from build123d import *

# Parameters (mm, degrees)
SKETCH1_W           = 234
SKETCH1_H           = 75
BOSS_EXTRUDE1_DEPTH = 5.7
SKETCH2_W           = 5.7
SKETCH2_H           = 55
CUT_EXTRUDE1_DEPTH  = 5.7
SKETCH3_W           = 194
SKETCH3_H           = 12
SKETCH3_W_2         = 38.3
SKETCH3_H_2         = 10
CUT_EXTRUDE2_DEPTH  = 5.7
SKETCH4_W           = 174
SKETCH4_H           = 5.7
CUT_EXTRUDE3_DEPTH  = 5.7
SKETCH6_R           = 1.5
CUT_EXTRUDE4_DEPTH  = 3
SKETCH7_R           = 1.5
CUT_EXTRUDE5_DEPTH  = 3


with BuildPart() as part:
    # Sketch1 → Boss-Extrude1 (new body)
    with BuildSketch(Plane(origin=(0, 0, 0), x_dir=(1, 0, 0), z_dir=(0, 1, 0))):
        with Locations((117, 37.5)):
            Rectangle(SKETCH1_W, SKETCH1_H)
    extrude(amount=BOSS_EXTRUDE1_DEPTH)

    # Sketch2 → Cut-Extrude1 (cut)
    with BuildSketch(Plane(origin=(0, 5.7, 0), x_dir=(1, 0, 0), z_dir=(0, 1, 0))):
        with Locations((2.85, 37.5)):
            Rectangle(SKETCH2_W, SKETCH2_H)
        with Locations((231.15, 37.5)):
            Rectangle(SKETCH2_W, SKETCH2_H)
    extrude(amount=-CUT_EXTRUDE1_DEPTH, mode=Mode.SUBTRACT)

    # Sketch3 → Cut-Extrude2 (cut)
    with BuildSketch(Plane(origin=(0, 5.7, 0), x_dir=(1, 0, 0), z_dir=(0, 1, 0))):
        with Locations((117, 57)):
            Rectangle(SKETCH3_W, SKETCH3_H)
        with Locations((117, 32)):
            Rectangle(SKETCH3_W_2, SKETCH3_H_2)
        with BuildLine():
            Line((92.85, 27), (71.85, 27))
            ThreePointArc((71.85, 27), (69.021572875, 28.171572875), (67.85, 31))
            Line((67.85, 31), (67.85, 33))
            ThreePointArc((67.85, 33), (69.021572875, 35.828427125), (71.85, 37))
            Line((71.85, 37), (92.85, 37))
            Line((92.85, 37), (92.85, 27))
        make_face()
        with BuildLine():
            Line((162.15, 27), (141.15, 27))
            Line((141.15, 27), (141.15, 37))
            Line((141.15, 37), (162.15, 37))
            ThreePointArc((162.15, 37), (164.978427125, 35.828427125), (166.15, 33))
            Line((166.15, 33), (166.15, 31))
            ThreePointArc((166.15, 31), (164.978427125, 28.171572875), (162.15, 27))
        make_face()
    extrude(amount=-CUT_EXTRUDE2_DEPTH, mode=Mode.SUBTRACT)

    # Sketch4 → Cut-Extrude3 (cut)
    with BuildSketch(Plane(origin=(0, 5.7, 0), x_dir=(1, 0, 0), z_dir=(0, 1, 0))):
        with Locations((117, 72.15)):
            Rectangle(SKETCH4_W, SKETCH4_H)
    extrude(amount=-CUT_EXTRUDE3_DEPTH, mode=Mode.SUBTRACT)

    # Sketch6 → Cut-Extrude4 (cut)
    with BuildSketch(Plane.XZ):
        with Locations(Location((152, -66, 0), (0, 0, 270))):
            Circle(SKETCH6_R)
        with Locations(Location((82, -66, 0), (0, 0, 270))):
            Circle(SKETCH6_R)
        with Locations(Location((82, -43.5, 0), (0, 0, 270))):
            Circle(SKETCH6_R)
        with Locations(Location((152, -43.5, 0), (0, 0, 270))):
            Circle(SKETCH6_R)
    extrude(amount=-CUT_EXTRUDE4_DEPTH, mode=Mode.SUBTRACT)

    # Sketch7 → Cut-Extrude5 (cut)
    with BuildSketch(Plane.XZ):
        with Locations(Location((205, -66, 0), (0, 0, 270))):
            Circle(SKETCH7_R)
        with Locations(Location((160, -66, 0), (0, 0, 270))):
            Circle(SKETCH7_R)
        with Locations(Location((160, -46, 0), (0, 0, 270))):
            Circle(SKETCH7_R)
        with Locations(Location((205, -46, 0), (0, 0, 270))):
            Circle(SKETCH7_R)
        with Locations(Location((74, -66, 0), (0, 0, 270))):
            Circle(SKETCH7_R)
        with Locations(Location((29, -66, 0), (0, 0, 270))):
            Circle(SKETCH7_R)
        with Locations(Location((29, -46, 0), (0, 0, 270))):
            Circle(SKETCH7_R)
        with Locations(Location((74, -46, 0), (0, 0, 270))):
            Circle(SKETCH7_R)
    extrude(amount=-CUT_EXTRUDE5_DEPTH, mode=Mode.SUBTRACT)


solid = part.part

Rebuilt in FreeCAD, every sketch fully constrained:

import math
import FreeCAD as App
import Part
import Sketcher
from FreeCAD import Vector


def add_polygon(sketch, points):
    """Adds a closed chain of lines whose ends are joined by coincident constraints."""
    first, n = sketch.GeometryCount, len(points)
    for a, b in zip(points, points[1:] + points[:1]):
        sketch.addGeometry(Part.LineSegment(App.Vector(*a, 0), App.Vector(*b, 0)), False)
    for i in range(n):
        sketch.addConstraint(Sketcher.Constraint("Coincident", first + i, 2, first + (i + 1) % n, 1))

doc = App.newDocument("Part")
params = doc.addObject("Spreadsheet::Sheet", "Params")
for row, (alias, value) in enumerate([
    ("sketch1_width", "234 mm"),
    ("sketch1_height", "75 mm"),
    ("pad1_length", "5.7 mm"),
    ("sketch2_height", "55 mm"),
    ("sketch2_width", "5.7 mm"),
    ("pocket1_length", "5.7 mm"),
    ("sketch3_radius", "4 mm"),
    ("sketch3_width", "194 mm"),
    ("sketch3_width2", "21 mm"),
    ("sketch3_height", "12 mm"),
    ("sketch3_height2", "10 mm"),
    ("pocket2_length", "5.7 mm"),
    ("sketch4_width", "174 mm"),
    ("sketch4_height", "5.7 mm"),
    ("pocket3_length", "5.7 mm"),
    ("sketch5_diameter", "3 mm"),
    ("pocket4_length", "3 mm"),
    ("sketch6_diameter", "3 mm"),
    ("pocket5_length", "3 mm"),
], start=1):
    params.set(f"A{row}", alias)
    params.set(f"B{row}", "=" + value)
    params.setAlias(f"B{row}", alias)

body = doc.addObject("PartDesign::Body", "Body")

sketch1 = doc.addObject("Sketcher::SketchObject", "Sketch")
body.addObject(sketch1)
sketch1.AttachmentSupport = (doc.XZ_Plane, [""])
sketch1.MapMode = "FlatFace"
add_polygon(sketch1, [(0, -75), (0, 0), (234, 0), (234, -75)])
sketch1.addConstraint(Sketcher.Constraint("Vertical", 0))
sketch1.addConstraint(Sketcher.Constraint("Horizontal", 1))
sketch1.addConstraint(Sketcher.Constraint("Vertical", 2))
sketch1.addConstraint(Sketcher.Constraint("Horizontal", 3))
sketch1.addConstraint(Sketcher.Constraint("Coincident", 0, 2, -1, 1))
sketch1.addConstraint(Sketcher.Constraint("DistanceX", 1, 1, 1, 2, 234.0))
sketch1.addConstraint(Sketcher.Constraint("DistanceY", 0, 1, 0, 2, 75.0))
sketch1.setExpression("Constraints[9]", "Params.sketch1_width")
sketch1.setExpression("Constraints[10]", "Params.sketch1_height")
pad1 = doc.addObject("PartDesign::Pad", "Pad")
body.addObject(pad1)
pad1.Profile = sketch1
pad1.setExpression("Length", "Params.pad1_length")
pad1.Reversed = True

sketch2 = doc.addObject("Sketcher::SketchObject", "Sketch001")
body.addObject(sketch2)
sketch2.AttachmentSupport = (doc.XZ_Plane, [""])
sketch2.MapMode = "FlatFace"
sketch2.AttachmentOffset = App.Placement(Vector(0, 0, -5.7), App.Rotation())
add_polygon(sketch2, [(0, -65), (0, -10), (6, -10), (6, -65)])
add_polygon(sketch2, [(228, -65), (228, -10), (234, -10), (234, -65)])
sketch2.addConstraint(Sketcher.Constraint("Vertical", 0))
sketch2.addConstraint(Sketcher.Constraint("Horizontal", 1))
sketch2.addConstraint(Sketcher.Constraint("Vertical", 2))
sketch2.addConstraint(Sketcher.Constraint("Horizontal", 3))
sketch2.addConstraint(Sketcher.Constraint("Vertical", 4))
sketch2.addConstraint(Sketcher.Constraint("Horizontal", 5))
sketch2.addConstraint(Sketcher.Constraint("Vertical", 6))
sketch2.addConstraint(Sketcher.Constraint("Horizontal", 7))
sketch2.addConstraint(Sketcher.Constraint("PointOnObject", 0, 2, -2))
sketch2.addConstraint(Sketcher.Constraint("Horizontal", 1, 2, 4, 2))
sketch2.addConstraint(Sketcher.Constraint("Horizontal", 3, 2, 6, 2))
sketch2.addConstraint(Sketcher.Constraint("Equal", 3, 5))
sketch2.addConstraint(Sketcher.Constraint("DistanceY", 0, 1, 0, 2, 55.0))
sketch2.addConstraint(Sketcher.Constraint("DistanceX", 1, 1, 1, 2, 5.7))
sketch2.addConstraint(Sketcher.Constraint("DistanceY", 0, 2, -1, 1, 10.0))
sketch2.addConstraint(Sketcher.Constraint("DistanceX", -1, 1, 5, 2, 234.0))
sketch2.setExpression("Constraints[20]", "Params.sketch2_height")
sketch2.setExpression("Constraints[21]", "Params.sketch2_width")
pocket1 = doc.addObject("PartDesign::Pocket", "Pocket")
body.addObject(pocket1)
pocket1.Profile = sketch2
pocket1.setExpression("Length", "Params.pocket1_length")
pocket1.Reversed = True

sketch3 = doc.addObject("Sketcher::SketchObject", "Sketch002")
body.addObject(sketch3)
sketch3.AttachmentSupport = (doc.XZ_Plane, [""])
sketch3.MapMode = "FlatFace"
sketch3.AttachmentOffset = App.Placement(Vector(0, 0, -5.7), App.Rotation())
add_polygon(sketch3, [(20, -63), (20, -51), (214, -51), (214, -63)])
add_polygon(sketch3, [(97.8, -37), (97.8, -27), (136.2, -27), (136.2, -37)])
sketch3.addGeometry(Part.LineSegment(Vector(71.8, -27, 0), Vector(92.8, -27, 0)), False)
sketch3.addGeometry(Part.LineSegment(Vector(92.8, -27, 0), Vector(92.8, -37, 0)), False)
sketch3.addGeometry(Part.LineSegment(Vector(92.8, -37, 0), Vector(71.8, -37, 0)), False)
sketch3.addGeometry(Part.ArcOfCircle(Part.Circle(Vector(71.8, -33, 0), Vector(0, 0, 1), 4), math.radians(180), math.radians(270)), False)
sketch3.addGeometry(Part.LineSegment(Vector(67.8, -33, 0), Vector(67.8, -31, 0)), False)
sketch3.addGeometry(Part.ArcOfCircle(Part.Circle(Vector(71.8, -31, 0), Vector(0, 0, 1), 4), math.radians(90), math.radians(180)), False)
sketch3.addGeometry(Part.LineSegment(Vector(141.2, -27, 0), Vector(162.2, -27, 0)), False)
sketch3.addGeometry(Part.ArcOfCircle(Part.Circle(Vector(162.2, -31, 0), Vector(0, 0, 1), 4), math.radians(0), math.radians(90)), False)
sketch3.addGeometry(Part.LineSegment(Vector(166.2, -31, 0), Vector(166.2, -33, 0)), False)
sketch3.addGeometry(Part.ArcOfCircle(Part.Circle(Vector(162.2, -33, 0), Vector(0, 0, 1), 4), math.radians(-90), math.radians(0)), False)
sketch3.addGeometry(Part.LineSegment(Vector(162.2, -37, 0), Vector(141.2, -37, 0)), False)
sketch3.addGeometry(Part.LineSegment(Vector(141.2, -37, 0), Vector(141.2, -27, 0)), False)
sketch3.addConstraint(Sketcher.Constraint("Coincident", 8, 2, 9, 1))
sketch3.addConstraint(Sketcher.Constraint("Coincident", 9, 2, 10, 1))
sketch3.addConstraint(Sketcher.Constraint("Tangent", 10, 2, 11, 2))
sketch3.addConstraint(Sketcher.Constraint("Tangent", 11, 1, 12, 1))
sketch3.addConstraint(Sketcher.Constraint("Tangent", 12, 2, 13, 2))
sketch3.addConstraint(Sketcher.Constraint("Tangent", 13, 1, 8, 1))
sketch3.addConstraint(Sketcher.Constraint("Tangent", 14, 2, 15, 2))
sketch3.addConstraint(Sketcher.Constraint("Tangent", 15, 1, 16, 1))
sketch3.addConstraint(Sketcher.Constraint("Tangent", 16, 2, 17, 2))
sketch3.addConstraint(Sketcher.Constraint("Tangent", 17, 1, 18, 1))
sketch3.addConstraint(Sketcher.Constraint("Coincident", 18, 2, 19, 1))
sketch3.addConstraint(Sketcher.Constraint("Coincident", 19, 2, 14, 1))
sketch3.addConstraint(Sketcher.Constraint("Vertical", 0))
sketch3.addConstraint(Sketcher.Constraint("Horizontal", 1))
sketch3.addConstraint(Sketcher.Constraint("Vertical", 2))
sketch3.addConstraint(Sketcher.Constraint("Horizontal", 3))
sketch3.addConstraint(Sketcher.Constraint("Vertical", 4))
sketch3.addConstraint(Sketcher.Constraint("Horizontal", 5))
sketch3.addConstraint(Sketcher.Constraint("Vertical", 6))
sketch3.addConstraint(Sketcher.Constraint("Horizontal", 7))
sketch3.addConstraint(Sketcher.Constraint("Horizontal", 8))
sketch3.addConstraint(Sketcher.Constraint("Vertical", 9))
sketch3.addConstraint(Sketcher.Constraint("Horizontal", 10))
sketch3.addConstraint(Sketcher.Constraint("Vertical", 12))
sketch3.addConstraint(Sketcher.Constraint("Horizontal", 14))
sketch3.addConstraint(Sketcher.Constraint("Vertical", 16))
sketch3.addConstraint(Sketcher.Constraint("Horizontal", 18))
sketch3.addConstraint(Sketcher.Constraint("Vertical", 19))
sketch3.addConstraint(Sketcher.Constraint("Equal", 11, 13))
sketch3.addConstraint(Sketcher.Constraint("Equal", 13, 15))
sketch3.addConstraint(Sketcher.Constraint("Equal", 15, 17))
sketch3.addConstraint(Sketcher.Constraint("Horizontal", 13, 3, 15, 3))
sketch3.addConstraint(Sketcher.Constraint("Horizontal", 11, 3, 17, 3))
sketch3.addConstraint(Sketcher.Constraint("Horizontal", 5, 2, 8, 2))
sketch3.addConstraint(Sketcher.Constraint("Horizontal", 7, 2, 9, 2))
sketch3.addConstraint(Sketcher.Constraint("Equal", 10, 14))
sketch3.addConstraint(Sketcher.Constraint("Radius", 11, 4.0))
sketch3.addConstraint(Sketcher.Constraint("DistanceX", 1, 1, 1, 2, 194.0))
sketch3.addConstraint(Sketcher.Constraint("DistanceX", 8, 1, 8, 2, 21.0))
sketch3.addConstraint(Sketcher.Constraint("DistanceY", 0, 1, 0, 2, 12.0))
sketch3.addConstraint(Sketcher.Constraint("DistanceY", 4, 1, 4, 2, 10.0))
sketch3.addConstraint(Sketcher.Constraint("DistanceX", 5, 1, 5, 2, 38.3))
sketch3.addConstraint(Sketcher.Constraint("DistanceY", 11, 3, -1, 1, 33.0))
sketch3.addConstraint(Sketcher.Constraint("DistanceX", -1, 1, 0, 2, 20.0))
sketch3.addConstraint(Sketcher.Constraint("DistanceY", 0, 2, -1, 1, 51.0))
sketch3.addConstraint(Sketcher.Constraint("DistanceX", 13, 3, 4, 2, 26.0))
sketch3.addConstraint(Sketcher.Constraint("DistanceX", 5, 2, 15, 3, 26.0))
sketch3.addConstraint(Sketcher.Constraint("DistanceX", -1, 1, 11, 3, 71.85))
sketch3.setExpression("Constraints[44]", "Params.sketch3_radius")
sketch3.setExpression("Constraints[45]", "Params.sketch3_width")
sketch3.setExpression("Constraints[46]", "Params.sketch3_width2")
sketch3.setExpression("Constraints[47]", "Params.sketch3_height")
sketch3.setExpression("Constraints[48]", "Params.sketch3_height2")
pocket2 = doc.addObject("PartDesign::Pocket", "Pocket001")
body.addObject(pocket2)
pocket2.Profile = sketch3
pocket2.setExpression("Length", "Params.pocket2_length")
pocket2.Reversed = True

sketch4 = doc.addObject("Sketcher::SketchObject", "Sketch003")
body.addObject(sketch4)
sketch4.AttachmentSupport = (doc.XZ_Plane, [""])
sketch4.MapMode = "FlatFace"
sketch4.AttachmentOffset = App.Placement(Vector(0, 0, -5.7), App.Rotation())
add_polygon(sketch4, [(30, -75), (30, -69), (204, -69), (204, -75)])
sketch4.addConstraint(Sketcher.Constraint("Vertical", 0))
sketch4.addConstraint(Sketcher.Constraint("Horizontal", 1))
sketch4.addConstraint(Sketcher.Constraint("Vertical", 2))
sketch4.addConstraint(Sketcher.Constraint("Horizontal", 3))
sketch4.addConstraint(Sketcher.Constraint("DistanceX", 1, 1, 1, 2, 174.0))
sketch4.addConstraint(Sketcher.Constraint("DistanceY", 0, 1, 0, 2, 5.7))
sketch4.addConstraint(Sketcher.Constraint("DistanceX", -1, 1, 0, 2, 30.0))
sketch4.addConstraint(Sketcher.Constraint("DistanceY", 2, 2, -1, 1, 75.0))
sketch4.setExpression("Constraints[8]", "Params.sketch4_width")
sketch4.setExpression("Constraints[9]", "Params.sketch4_height")
pocket3 = doc.addObject("PartDesign::Pocket", "Pocket002")
body.addObject(pocket3)
pocket3.Profile = sketch4
pocket3.setExpression("Length", "Params.pocket3_length")
pocket3.Reversed = True

sketch5 = doc.addObject("Sketcher::SketchObject", "Sketch004")
body.addObject(sketch5)
sketch5.AttachmentSupport = (doc.XZ_Plane, [""])
sketch5.MapMode = "FlatFace"
sketch5.addGeometry(Part.Circle(Vector(152, -66, 0), Vector(0, 0, 1), 1.5), False)
sketch5.addGeometry(Part.Circle(Vector(82, -66, 0), Vector(0, 0, 1), 1.5), False)
sketch5.addGeometry(Part.Circle(Vector(82, -43.5, 0), Vector(0, 0, 1), 1.5), False)
sketch5.addGeometry(Part.Circle(Vector(152, -43.5, 0), Vector(0, 0, 1), 1.5), False)
sketch5.addConstraint(Sketcher.Constraint("Equal", 0, 1))
sketch5.addConstraint(Sketcher.Constraint("Equal", 1, 2))
sketch5.addConstraint(Sketcher.Constraint("Equal", 2, 3))
sketch5.addConstraint(Sketcher.Constraint("Horizontal", 0, 3, 1, 3))
sketch5.addConstraint(Sketcher.Constraint("Horizontal", 2, 3, 3, 3))
sketch5.addConstraint(Sketcher.Constraint("Vertical", 1, 3, 2, 3))
sketch5.addConstraint(Sketcher.Constraint("Vertical", 0, 3, 3, 3))
sketch5.addConstraint(Sketcher.Constraint("Diameter", 0, 3.0))
sketch5.addConstraint(Sketcher.Constraint("DistanceX", -1, 1, 0, 3, 152.0))
sketch5.addConstraint(Sketcher.Constraint("DistanceY", 0, 3, -1, 1, 66.0))
sketch5.addConstraint(Sketcher.Constraint("DistanceX", -1, 1, 1, 3, 82.0))
sketch5.addConstraint(Sketcher.Constraint("DistanceY", 2, 3, -1, 1, 43.5))
sketch5.setExpression("Constraints[7]", "Params.sketch5_diameter")
pocket4 = doc.addObject("PartDesign::Pocket", "Pocket003")
body.addObject(pocket4)
pocket4.Profile = sketch5
pocket4.setExpression("Length", "Params.pocket4_length")

sketch6 = doc.addObject("Sketcher::SketchObject", "Sketch005")
body.addObject(sketch6)
sketch6.AttachmentSupport = (doc.XZ_Plane, [""])
sketch6.MapMode = "FlatFace"
sketch6.addGeometry(Part.Circle(Vector(205, -66, 0), Vector(0, 0, 1), 1.5), False)
sketch6.addGeometry(Part.Circle(Vector(160, -66, 0), Vector(0, 0, 1), 1.5), False)
sketch6.addGeometry(Part.Circle(Vector(160, -46, 0), Vector(0, 0, 1), 1.5), False)
sketch6.addGeometry(Part.Circle(Vector(205, -46, 0), Vector(0, 0, 1), 1.5), False)
sketch6.addGeometry(Part.Circle(Vector(74, -66, 0), Vector(0, 0, 1), 1.5), False)
sketch6.addGeometry(Part.Circle(Vector(29, -66, 0), Vector(0, 0, 1), 1.5), False)
sketch6.addGeometry(Part.Circle(Vector(29, -46, 0), Vector(0, 0, 1), 1.5), False)
sketch6.addGeometry(Part.Circle(Vector(74, -46, 0), Vector(0, 0, 1), 1.5), False)
sketch6.addConstraint(Sketcher.Constraint("Equal", 0, 1))
sketch6.addConstraint(Sketcher.Constraint("Equal", 1, 2))
sketch6.addConstraint(Sketcher.Constraint("Equal", 2, 3))
sketch6.addConstraint(Sketcher.Constraint("Equal", 3, 4))
sketch6.addConstraint(Sketcher.Constraint("Equal", 4, 5))
sketch6.addConstraint(Sketcher.Constraint("Equal", 5, 6))
sketch6.addConstraint(Sketcher.Constraint("Equal", 6, 7))
sketch6.addConstraint(Sketcher.Constraint("Horizontal", 0, 3, 1, 3))
sketch6.addConstraint(Sketcher.Constraint("Horizontal", 2, 3, 3, 3))
sketch6.addConstraint(Sketcher.Constraint("Horizontal", 1, 3, 4, 3))
sketch6.addConstraint(Sketcher.Constraint("Horizontal", 4, 3, 5, 3))
sketch6.addConstraint(Sketcher.Constraint("Horizontal", 3, 3, 6, 3))
sketch6.addConstraint(Sketcher.Constraint("Horizontal", 6, 3, 7, 3))
sketch6.addConstraint(Sketcher.Constraint("Vertical", 1, 3, 2, 3))
sketch6.addConstraint(Sketcher.Constraint("Vertical", 0, 3, 3, 3))
sketch6.addConstraint(Sketcher.Constraint("Vertical", 5, 3, 6, 3))
sketch6.addConstraint(Sketcher.Constraint("Vertical", 4, 3, 7, 3))
sketch6.addConstraint(Sketcher.Constraint("Diameter", 0, 3.0))
sketch6.addConstraint(Sketcher.Constraint("DistanceX", -1, 1, 0, 3, 205.0))
sketch6.addConstraint(Sketcher.Constraint("DistanceY", 0, 3, -1, 1, 66.0))
sketch6.addConstraint(Sketcher.Constraint("DistanceX", -1, 1, 1, 3, 160.0))
sketch6.addConstraint(Sketcher.Constraint("DistanceY", 2, 3, -1, 1, 46.0))
sketch6.addConstraint(Sketcher.Constraint("DistanceX", -1, 1, 4, 3, 74.0))
sketch6.addConstraint(Sketcher.Constraint("DistanceX", -1, 1, 5, 3, 29.0))
sketch6.setExpression("Constraints[17]", "Params.sketch6_diameter")
pocket5 = doc.addObject("PartDesign::Pocket", "Pocket004")
body.addObject(pocket5)
pocket5.Profile = sketch6
pocket5.setExpression("Length", "Params.pocket5_length")

doc.recompute()
